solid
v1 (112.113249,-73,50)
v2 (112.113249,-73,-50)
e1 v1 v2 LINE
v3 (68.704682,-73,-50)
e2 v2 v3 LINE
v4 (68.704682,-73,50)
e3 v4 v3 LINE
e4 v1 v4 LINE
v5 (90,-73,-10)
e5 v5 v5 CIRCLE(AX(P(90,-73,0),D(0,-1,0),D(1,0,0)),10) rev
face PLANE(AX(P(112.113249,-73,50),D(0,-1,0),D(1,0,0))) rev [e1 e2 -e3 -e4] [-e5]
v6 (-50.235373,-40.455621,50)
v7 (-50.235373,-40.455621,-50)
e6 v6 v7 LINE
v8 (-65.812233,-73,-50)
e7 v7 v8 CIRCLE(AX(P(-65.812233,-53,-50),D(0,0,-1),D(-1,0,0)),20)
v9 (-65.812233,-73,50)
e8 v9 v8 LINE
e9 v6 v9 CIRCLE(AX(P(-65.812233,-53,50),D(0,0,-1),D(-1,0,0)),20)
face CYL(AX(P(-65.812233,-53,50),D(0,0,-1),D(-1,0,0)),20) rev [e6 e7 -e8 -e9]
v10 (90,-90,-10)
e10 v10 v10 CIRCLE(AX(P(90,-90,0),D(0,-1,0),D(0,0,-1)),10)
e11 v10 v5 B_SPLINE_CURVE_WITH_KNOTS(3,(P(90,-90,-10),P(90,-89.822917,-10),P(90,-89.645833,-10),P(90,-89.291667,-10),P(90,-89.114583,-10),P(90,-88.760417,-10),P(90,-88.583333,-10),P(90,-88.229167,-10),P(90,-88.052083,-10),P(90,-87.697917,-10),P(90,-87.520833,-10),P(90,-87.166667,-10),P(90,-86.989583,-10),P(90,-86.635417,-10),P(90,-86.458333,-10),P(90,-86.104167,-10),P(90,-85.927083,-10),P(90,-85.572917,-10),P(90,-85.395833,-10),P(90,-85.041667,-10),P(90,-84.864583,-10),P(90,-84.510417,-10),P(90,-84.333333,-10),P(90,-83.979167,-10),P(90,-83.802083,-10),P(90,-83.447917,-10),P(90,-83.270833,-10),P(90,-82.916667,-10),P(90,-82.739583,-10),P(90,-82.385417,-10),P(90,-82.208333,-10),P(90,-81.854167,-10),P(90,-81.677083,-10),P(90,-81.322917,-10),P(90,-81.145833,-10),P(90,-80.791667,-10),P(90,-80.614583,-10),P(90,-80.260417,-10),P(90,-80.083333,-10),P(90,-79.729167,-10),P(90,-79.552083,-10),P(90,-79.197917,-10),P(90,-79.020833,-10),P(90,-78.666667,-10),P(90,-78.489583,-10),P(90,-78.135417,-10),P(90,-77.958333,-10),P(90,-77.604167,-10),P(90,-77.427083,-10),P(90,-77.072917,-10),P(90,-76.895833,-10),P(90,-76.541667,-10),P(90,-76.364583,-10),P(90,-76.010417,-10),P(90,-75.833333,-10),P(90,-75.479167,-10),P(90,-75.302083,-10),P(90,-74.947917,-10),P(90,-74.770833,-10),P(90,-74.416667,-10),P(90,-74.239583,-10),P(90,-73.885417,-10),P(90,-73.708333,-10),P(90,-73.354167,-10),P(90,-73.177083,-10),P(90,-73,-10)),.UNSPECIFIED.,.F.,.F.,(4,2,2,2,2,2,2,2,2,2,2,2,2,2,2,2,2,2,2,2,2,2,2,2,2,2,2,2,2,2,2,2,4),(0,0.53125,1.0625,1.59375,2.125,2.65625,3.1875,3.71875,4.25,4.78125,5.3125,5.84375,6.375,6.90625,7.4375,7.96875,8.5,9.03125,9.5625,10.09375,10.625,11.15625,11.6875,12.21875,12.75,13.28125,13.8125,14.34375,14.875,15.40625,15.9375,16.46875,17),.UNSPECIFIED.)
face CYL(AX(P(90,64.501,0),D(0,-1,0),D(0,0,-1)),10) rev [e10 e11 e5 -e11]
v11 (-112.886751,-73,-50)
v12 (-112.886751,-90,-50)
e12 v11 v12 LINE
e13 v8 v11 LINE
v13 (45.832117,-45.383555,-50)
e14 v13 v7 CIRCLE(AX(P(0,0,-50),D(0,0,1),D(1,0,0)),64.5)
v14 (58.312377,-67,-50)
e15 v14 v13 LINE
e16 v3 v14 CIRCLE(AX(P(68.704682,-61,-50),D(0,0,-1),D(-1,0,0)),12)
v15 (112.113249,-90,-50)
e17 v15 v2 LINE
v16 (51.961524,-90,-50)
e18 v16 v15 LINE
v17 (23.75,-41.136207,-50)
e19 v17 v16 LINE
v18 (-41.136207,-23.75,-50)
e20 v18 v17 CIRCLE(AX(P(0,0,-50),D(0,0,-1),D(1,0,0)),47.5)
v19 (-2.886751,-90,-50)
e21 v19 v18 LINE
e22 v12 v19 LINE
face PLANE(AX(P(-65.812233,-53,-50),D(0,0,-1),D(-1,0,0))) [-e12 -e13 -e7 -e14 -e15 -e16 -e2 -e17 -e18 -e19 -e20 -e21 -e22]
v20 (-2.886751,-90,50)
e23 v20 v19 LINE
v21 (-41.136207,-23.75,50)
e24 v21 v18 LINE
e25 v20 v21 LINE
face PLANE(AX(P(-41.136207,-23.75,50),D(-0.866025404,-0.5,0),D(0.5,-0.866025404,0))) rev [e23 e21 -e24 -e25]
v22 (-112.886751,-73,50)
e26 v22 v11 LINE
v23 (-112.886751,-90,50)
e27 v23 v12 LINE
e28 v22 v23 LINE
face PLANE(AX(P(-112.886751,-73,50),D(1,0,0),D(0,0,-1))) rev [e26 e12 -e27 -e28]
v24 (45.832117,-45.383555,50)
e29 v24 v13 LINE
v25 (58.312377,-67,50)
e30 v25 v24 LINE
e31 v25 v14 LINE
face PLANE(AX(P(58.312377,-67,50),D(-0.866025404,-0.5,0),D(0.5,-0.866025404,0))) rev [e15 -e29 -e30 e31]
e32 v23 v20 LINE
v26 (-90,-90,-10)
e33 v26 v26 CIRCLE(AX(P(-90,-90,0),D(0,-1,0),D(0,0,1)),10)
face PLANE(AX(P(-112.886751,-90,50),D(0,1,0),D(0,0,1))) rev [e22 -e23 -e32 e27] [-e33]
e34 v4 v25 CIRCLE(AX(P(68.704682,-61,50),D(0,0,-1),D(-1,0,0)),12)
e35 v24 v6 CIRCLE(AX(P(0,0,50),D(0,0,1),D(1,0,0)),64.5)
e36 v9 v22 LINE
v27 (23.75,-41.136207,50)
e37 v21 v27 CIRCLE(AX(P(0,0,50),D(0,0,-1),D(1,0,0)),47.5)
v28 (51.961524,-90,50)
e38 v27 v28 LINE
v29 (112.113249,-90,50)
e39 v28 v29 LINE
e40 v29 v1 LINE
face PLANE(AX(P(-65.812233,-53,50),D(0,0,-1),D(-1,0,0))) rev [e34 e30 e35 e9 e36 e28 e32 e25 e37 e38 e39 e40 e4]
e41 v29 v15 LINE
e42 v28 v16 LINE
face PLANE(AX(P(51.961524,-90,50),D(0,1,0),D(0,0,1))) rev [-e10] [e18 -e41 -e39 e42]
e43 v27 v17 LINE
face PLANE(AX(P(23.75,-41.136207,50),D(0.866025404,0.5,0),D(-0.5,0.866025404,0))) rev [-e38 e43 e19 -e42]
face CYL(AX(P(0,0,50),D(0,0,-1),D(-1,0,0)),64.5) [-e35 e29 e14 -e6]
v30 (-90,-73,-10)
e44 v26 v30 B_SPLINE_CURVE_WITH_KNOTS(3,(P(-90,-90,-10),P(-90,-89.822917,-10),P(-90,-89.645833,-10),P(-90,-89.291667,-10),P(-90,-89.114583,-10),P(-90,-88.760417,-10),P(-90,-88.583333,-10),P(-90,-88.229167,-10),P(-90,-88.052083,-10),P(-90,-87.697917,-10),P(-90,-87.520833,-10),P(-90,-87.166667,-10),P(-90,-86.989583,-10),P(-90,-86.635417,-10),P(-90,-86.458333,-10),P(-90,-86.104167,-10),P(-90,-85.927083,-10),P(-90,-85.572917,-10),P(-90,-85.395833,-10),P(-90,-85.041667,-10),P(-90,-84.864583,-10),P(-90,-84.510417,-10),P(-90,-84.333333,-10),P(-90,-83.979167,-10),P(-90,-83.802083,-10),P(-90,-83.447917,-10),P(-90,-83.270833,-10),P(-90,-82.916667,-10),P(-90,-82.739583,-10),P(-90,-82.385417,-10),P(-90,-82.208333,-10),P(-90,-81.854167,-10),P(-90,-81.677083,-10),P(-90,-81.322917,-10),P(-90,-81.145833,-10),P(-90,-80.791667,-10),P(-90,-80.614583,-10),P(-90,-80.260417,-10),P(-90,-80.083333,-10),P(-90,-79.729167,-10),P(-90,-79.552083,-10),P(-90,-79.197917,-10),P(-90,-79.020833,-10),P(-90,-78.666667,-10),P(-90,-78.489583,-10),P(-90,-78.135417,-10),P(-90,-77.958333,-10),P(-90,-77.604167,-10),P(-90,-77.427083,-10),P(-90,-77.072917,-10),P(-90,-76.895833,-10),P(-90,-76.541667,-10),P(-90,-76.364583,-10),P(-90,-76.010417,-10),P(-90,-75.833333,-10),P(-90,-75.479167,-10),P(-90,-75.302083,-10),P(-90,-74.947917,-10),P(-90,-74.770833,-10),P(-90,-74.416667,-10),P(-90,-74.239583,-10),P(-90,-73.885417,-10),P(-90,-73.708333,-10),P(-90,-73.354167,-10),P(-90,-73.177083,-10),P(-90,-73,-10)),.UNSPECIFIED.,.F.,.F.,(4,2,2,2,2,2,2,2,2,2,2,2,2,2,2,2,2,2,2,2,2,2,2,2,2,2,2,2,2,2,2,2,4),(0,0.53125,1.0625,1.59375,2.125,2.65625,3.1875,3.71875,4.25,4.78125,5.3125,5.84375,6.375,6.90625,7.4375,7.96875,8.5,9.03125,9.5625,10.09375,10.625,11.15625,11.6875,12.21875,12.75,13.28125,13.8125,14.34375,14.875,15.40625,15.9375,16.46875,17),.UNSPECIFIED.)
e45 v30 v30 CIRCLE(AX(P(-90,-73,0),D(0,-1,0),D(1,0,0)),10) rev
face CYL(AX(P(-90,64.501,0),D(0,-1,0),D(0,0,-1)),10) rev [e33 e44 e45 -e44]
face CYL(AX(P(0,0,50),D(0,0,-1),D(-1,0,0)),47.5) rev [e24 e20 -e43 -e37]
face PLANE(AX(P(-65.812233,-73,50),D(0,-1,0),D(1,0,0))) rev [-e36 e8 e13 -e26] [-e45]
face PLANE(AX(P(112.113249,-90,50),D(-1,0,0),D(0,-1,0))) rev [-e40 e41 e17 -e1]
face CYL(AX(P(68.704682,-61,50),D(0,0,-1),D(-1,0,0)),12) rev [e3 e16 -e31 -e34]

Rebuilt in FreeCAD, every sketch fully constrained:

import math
import FreeCAD as App
import Part
import Sketcher
from FreeCAD import Vector
Q = App.Units.Quantity

doc = App.newDocument("Part")
body = doc.addObject("PartDesign::Body", "Body")

# Sketch on XY plane
sketch1 = body.newObject("Sketcher::SketchObject", "Sketch")
sketch1.AttachmentSupport = (doc.getObject("XY_Plane"), [""])
sketch1.MapMode = "FlatFace"
sketch1.addGeometry([
    Part.LineSegment(Vector(-65.812233, -73, 0), Vector(-112.886751, -73, 0)),  # 0
    Part.LineSegment(Vector(-112.886751, -73, 0), Vector(-112.886751, -90, 0)),  # 1
    Part.LineSegment(Vector(-112.886751, -90, 0), Vector(-2.886751, -90, 0)),  # 2
    Part.LineSegment(Vector(-2.886751, -90, 0), Vector(-41.136207, -23.75, 0)),  # 3
    Part.ArcOfCircle(Part.Circle(Vector(0, 0, 0), Vector(0, 0, 1), 47.5), math.radians(-60), math.radians(210)),  # 4
    Part.LineSegment(Vector(23.75, -41.136207, 0), Vector(51.961524, -90, 0)),  # 5
    Part.LineSegment(Vector(51.961524, -90, 0), Vector(112.113249, -90, 0)),  # 6
    Part.LineSegment(Vector(112.113249, -90, 0), Vector(112.113249, -73, 0)),  # 7
    Part.LineSegment(Vector(112.113249, -73, 0), Vector(68.704682, -73, 0)),  # 8
    Part.ArcOfCircle(Part.Circle(Vector(68.704682, -61, 0), Vector(0, 0, 1), 12), math.radians(-150), math.radians(-90)),  # 9
    Part.LineSegment(Vector(58.312377, -67, 0), Vector(45.832117, -45.383555, 0)),  # 10
    Part.ArcOfCircle(Part.Circle(Vector(0, 0, 0), Vector(0, 0, 1), 64.5), math.radians(-44.718245), math.radians(218.845237)),  # 11
    Part.ArcOfCircle(Part.Circle(Vector(-65.812233, -53, 0), Vector(0, 0, 1), 20), math.radians(-90), math.radians(38.845237)),  # 12
], False)
sketch1.addConstraint([
    Sketcher.Constraint("Coincident", 0, 2, 1, 1),
    Sketcher.Constraint("Coincident", 1, 2, 2, 1),
    Sketcher.Constraint("Coincident", 2, 2, 3, 1),
    Sketcher.Constraint("Tangent", 3, 2, 4, 2),
    Sketcher.Constraint("Coincident", 4, 1, 5, 1),
    Sketcher.Constraint("Coincident", 5, 2, 6, 1),
    Sketcher.Constraint("Coincident", 6, 2, 7, 1),
    Sketcher.Constraint("Coincident", 7, 2, 8, 1),
    Sketcher.Constraint("Tangent", 8, 2, 9, 2),
    Sketcher.Constraint("Tangent", 9, 1, 10, 1),
    Sketcher.Constraint("Coincident", 10, 2, 11, 1),
    Sketcher.Constraint("Tangent", 11, 2, 12, 2),
    Sketcher.Constraint("Tangent", 12, 1, 0, 1),
    Sketcher.Constraint("Horizontal", 0),
    Sketcher.Constraint("Vertical", 1),
    Sketcher.Constraint("Horizontal", 2),
    Sketcher.Constraint("Horizontal", 6),
    Sketcher.Constraint("Vertical", 7),
    Sketcher.Constraint("Horizontal", 8),
    Sketcher.Constraint("Coincident", 4, 3, -1, 1),
    Sketcher.Constraint("Coincident", 11, 3, -1, 1),
    Sketcher.Constraint("Parallel", 3, 5),
    Sketcher.Constraint("Parallel", 5, 10),
    Sketcher.Constraint("Horizontal", 2, 2, 5, 2),
    Sketcher.Constraint("Horizontal", 0, 2, 7, 2),
    Sketcher.Constraint("Radius", 9, Q("12 mm")),
    Sketcher.Constraint("Radius", 12, Q("20 mm")),
    Sketcher.Constraint("Radius", 4, Q("47.5 mm")),
    Sketcher.Constraint("Radius", 11, Q("64.5 mm")),
    Sketcher.Constraint("DistanceX", 2, 1, 2, 2, Q("110 mm")),
    Sketcher.Constraint("DistanceY", 1, 2, 1, 1, Q("17 mm")),
    Sketcher.Constraint("Angle", 3, Q("120 deg")),
    Sketcher.Constraint("DistanceY", 9, 3, -1, 1, Q("61 mm")),
    Sketcher.Constraint("DistanceX", 2, 2, 6, 2, Q("115 mm")),
    Sketcher.Constraint("DistanceX", -1, 1, 4, 1, Q("23.75 mm")),
    Sketcher.Constraint("Distance", 10, Q("24.960521 mm")),
])
pad1 = body.newObject("PartDesign::Pad", "Pad")
pad1.Profile = sketch1
pad1.Length = 100
pad1.Midplane = True

# Sketch on XZ plane
sketch2 = body.newObject("Sketcher::SketchObject", "Sketch001")
sketch2.AttachmentSupport = (doc.getObject("XZ_Plane"), [""])
sketch2.MapMode = "FlatFace"
sketch2.AttachmentOffset = App.Placement(Vector(0, 0, 90), App.Rotation())
sketch2.addGeometry(Part.Circle(Vector(90, 0, 0), Vector(0, 0, 1), 10), False)
sketch2.addConstraint([
    Sketcher.Constraint("PointOnObject", 0, 3, -1),
    Sketcher.Constraint("Diameter", 0, Q("20 mm")),
    Sketcher.Constraint("DistanceX", -1, 1, 0, 3, Q("90 mm")),
])
pocket1 = body.newObject("PartDesign::Pocket", "Pocket")
pocket1.Profile = sketch2
pocket1.Type = "UpToFirst"

# Sketch on XZ plane
sketch3 = body.newObject("Sketcher::SketchObject", "Sketch002")
sketch3.AttachmentSupport = (doc.getObject("XZ_Plane"), [""])
sketch3.MapMode = "FlatFace"
sketch3.AttachmentOffset = App.Placement(Vector(0, 0, 90), App.Rotation())
sketch3.addGeometry(Part.Circle(Vector(-90, 0, 0), Vector(0, 0, 1), 10), False)
sketch3.addConstraint([
    Sketcher.Constraint("PointOnObject", 0, 3, -1),
    Sketcher.Constraint("Diameter", 0, Q("20 mm")),
    Sketcher.Constraint("DistanceX", 0, 3, -1, 1, Q("90 mm")),
])
pocket2 = body.newObject("PartDesign::Pocket", "Pocket001")
pocket2.Profile = sketch3
pocket2.Type = "UpToFirst"

doc.recompute()
